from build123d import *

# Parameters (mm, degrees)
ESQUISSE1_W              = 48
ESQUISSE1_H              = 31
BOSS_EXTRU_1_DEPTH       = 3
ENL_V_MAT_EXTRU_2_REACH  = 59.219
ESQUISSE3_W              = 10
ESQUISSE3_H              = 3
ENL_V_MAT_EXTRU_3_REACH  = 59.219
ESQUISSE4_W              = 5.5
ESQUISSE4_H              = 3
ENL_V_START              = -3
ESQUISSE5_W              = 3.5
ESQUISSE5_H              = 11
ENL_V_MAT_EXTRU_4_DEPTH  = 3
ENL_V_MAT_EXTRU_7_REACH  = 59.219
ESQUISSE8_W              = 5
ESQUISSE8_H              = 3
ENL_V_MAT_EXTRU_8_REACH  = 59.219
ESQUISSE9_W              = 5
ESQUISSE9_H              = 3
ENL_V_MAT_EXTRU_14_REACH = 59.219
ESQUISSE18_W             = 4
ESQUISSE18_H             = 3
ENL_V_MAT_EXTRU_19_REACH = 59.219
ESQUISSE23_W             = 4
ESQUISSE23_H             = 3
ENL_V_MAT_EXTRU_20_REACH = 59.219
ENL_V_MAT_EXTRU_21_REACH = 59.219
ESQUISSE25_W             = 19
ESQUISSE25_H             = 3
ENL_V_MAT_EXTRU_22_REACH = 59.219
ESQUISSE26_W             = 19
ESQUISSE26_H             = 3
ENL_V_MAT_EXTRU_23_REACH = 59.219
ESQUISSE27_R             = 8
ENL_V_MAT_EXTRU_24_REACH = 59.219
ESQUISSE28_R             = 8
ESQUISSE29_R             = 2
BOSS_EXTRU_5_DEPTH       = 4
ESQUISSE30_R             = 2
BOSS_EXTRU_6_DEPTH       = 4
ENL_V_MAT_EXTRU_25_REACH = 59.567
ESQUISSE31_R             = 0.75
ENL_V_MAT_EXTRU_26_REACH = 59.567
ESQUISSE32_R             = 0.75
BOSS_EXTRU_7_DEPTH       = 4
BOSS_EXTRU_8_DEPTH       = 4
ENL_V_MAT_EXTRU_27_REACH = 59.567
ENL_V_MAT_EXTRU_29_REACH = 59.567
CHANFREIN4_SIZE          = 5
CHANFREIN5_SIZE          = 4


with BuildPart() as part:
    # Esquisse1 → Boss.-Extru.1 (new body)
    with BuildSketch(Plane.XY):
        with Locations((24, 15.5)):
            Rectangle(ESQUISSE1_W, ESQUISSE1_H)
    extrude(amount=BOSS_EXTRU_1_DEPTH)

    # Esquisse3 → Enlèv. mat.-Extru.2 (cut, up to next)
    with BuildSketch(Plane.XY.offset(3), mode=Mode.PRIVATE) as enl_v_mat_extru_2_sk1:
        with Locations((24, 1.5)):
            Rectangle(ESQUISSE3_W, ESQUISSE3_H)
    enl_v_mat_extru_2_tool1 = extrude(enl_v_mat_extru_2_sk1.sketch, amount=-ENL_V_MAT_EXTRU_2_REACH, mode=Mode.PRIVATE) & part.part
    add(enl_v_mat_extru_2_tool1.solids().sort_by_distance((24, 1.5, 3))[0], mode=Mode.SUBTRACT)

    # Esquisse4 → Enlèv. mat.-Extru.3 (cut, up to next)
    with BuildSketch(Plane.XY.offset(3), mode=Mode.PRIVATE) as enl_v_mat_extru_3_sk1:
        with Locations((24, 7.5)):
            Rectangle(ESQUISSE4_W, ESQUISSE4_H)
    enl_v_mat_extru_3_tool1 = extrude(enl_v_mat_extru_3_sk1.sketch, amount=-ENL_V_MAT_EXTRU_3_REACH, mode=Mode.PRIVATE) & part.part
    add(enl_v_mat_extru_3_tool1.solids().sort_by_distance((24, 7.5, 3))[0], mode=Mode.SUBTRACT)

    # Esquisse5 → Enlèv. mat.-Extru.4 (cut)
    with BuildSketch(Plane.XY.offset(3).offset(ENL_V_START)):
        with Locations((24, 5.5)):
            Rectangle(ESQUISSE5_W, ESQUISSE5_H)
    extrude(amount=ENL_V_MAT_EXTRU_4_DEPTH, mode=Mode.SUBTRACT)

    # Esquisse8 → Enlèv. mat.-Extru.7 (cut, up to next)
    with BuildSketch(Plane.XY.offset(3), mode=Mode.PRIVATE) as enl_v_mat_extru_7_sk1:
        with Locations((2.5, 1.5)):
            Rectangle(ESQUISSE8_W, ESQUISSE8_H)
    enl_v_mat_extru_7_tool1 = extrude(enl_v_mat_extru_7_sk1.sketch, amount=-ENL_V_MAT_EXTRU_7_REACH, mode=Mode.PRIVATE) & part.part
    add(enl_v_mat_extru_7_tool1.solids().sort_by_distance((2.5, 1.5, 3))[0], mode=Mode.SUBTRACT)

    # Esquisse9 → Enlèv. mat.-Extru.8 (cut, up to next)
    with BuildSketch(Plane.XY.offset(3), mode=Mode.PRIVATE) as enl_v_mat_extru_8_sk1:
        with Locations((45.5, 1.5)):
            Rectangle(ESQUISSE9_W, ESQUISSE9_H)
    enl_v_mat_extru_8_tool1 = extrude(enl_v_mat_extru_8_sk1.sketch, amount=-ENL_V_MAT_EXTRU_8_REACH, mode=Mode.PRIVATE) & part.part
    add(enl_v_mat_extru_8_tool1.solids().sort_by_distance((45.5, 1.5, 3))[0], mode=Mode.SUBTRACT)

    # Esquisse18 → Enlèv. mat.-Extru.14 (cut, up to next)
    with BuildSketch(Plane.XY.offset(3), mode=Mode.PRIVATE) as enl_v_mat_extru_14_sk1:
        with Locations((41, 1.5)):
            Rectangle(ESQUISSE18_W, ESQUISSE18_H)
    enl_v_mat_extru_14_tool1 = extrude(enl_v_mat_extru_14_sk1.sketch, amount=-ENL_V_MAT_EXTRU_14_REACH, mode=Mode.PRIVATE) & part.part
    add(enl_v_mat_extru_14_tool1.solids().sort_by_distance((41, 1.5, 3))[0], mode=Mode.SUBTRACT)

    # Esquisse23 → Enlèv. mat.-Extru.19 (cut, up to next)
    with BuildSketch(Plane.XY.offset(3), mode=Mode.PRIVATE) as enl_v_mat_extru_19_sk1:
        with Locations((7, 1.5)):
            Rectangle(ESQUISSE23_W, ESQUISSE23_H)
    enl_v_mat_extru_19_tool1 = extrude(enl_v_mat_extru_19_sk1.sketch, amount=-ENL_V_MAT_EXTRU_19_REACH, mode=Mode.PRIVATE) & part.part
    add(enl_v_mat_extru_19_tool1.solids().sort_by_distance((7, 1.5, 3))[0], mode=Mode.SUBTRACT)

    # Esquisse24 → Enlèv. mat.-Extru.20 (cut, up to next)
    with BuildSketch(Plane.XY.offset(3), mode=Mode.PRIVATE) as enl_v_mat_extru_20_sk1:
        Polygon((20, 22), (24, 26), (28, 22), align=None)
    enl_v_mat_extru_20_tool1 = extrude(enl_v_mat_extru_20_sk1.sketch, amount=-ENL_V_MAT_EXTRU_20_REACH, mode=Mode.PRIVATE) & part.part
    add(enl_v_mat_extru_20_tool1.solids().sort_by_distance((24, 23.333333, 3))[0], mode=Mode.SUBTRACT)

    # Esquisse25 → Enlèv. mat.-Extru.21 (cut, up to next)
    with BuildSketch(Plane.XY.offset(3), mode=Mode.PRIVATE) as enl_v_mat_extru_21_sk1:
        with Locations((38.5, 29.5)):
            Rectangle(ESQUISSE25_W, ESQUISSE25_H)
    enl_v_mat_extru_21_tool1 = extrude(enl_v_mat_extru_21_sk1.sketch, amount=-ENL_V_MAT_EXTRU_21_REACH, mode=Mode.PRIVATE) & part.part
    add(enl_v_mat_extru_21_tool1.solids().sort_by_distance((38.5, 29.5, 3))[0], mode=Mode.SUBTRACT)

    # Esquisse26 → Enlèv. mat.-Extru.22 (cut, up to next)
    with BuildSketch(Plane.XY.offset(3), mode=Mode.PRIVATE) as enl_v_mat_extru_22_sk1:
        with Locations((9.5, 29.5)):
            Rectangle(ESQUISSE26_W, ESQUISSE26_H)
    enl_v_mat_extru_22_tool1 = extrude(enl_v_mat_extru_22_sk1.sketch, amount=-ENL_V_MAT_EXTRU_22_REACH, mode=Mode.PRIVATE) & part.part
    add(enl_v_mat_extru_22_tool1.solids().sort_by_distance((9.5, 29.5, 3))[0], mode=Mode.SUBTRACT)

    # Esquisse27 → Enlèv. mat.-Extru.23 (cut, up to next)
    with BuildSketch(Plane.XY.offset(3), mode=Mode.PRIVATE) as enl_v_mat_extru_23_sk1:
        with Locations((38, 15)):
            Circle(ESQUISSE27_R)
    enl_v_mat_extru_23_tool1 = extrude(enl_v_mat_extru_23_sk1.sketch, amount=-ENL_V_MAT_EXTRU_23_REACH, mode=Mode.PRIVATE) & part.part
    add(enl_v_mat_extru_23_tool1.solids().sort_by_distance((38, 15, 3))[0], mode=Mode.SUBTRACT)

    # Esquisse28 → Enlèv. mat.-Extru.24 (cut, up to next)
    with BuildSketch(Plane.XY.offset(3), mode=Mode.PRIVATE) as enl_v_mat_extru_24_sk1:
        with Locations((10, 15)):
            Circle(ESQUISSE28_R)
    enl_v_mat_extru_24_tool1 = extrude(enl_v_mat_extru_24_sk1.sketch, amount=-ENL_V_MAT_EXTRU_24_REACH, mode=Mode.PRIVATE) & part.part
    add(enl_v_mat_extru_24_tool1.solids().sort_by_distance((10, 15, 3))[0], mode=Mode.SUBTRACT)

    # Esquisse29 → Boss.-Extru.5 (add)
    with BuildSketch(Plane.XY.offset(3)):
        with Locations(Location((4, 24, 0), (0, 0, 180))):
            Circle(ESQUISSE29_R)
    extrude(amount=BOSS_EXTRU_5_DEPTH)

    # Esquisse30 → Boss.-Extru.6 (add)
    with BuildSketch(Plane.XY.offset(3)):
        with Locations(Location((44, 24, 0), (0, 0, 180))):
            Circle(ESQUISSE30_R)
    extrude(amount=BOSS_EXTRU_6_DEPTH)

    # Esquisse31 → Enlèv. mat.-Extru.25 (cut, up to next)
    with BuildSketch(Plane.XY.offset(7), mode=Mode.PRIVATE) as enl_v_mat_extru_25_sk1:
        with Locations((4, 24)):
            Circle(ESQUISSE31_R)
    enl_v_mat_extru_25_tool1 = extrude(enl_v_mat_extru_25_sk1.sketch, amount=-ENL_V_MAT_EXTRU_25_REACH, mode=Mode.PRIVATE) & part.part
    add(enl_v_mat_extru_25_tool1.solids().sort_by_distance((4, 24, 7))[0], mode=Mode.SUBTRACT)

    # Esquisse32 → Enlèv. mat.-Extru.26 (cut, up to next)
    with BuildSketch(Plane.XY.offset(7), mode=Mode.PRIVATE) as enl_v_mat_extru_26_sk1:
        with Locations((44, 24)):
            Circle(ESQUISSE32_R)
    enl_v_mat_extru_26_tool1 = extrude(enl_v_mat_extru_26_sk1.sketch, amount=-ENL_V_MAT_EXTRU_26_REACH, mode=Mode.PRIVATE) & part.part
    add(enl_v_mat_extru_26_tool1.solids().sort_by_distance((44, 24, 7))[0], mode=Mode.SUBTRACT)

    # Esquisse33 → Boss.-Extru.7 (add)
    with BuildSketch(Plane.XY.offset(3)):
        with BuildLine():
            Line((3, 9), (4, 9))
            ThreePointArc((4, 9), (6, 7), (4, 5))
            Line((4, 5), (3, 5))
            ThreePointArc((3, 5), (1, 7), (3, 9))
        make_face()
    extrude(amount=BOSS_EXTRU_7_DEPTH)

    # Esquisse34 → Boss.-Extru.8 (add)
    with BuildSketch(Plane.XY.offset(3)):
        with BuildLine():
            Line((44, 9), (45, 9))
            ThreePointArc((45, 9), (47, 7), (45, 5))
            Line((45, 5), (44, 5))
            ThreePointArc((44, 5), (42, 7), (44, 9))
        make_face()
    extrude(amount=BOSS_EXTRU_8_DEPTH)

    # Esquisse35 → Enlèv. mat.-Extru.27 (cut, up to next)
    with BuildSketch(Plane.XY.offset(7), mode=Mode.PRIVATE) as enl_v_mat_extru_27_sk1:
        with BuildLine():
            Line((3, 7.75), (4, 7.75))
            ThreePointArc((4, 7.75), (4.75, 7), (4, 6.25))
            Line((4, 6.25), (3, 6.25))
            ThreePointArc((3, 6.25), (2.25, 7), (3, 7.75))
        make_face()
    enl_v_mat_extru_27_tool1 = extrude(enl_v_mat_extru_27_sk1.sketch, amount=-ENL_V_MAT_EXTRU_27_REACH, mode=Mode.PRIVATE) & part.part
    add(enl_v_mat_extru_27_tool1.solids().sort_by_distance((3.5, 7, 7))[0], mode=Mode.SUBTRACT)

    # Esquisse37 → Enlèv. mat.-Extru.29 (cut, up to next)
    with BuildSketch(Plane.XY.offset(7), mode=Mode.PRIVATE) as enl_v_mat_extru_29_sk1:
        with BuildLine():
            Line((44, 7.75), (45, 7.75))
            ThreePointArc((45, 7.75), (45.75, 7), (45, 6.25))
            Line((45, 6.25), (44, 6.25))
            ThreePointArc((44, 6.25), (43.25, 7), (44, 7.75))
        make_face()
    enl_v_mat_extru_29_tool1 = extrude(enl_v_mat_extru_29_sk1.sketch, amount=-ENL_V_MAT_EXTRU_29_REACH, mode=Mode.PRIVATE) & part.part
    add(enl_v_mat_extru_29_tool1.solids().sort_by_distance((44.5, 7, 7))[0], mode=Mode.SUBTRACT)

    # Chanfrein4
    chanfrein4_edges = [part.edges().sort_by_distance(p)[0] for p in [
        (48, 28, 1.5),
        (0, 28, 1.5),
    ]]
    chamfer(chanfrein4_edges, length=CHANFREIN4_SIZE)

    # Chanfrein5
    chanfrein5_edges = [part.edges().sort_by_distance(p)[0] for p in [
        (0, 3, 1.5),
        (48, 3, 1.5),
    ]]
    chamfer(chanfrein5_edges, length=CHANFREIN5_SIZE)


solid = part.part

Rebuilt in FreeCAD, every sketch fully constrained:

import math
import FreeCAD as App
import Part
import Sketcher
from FreeCAD import Vector
Q = App.Units.Quantity


def edges_at(feature, points):
    """Names of the edges that pass closest to the given points."""
    edges = feature.Shape.Edges
    near = lambda p: min(range(len(edges)), key=lambda i: edges[i].distToShape(Part.Vertex(*p))[0])
    return sorted({f"Edge{near(p) + 1}" for p in points})

doc = App.newDocument("Part")
params = doc.addObject("Spreadsheet::Sheet", "Params")
for row, (alias, value) in enumerate([
    ("sketch1_width", "48 mm"),
    ("sketch1_height", "31 mm"),
    ("pad1_length", "3 mm"),
    ("sketch2_width", "10 mm"),
    ("sketch2_height", "3 mm"),
    ("sketch3_height", "3 mm"),
    ("sketch3_width", "5.5 mm"),
    ("sketch4_height", "11 mm"),
    ("sketch4_width", "3.5 mm"),
    ("pocket3_length", "3 mm"),
    ("sketch5_width", "5 mm"),
    ("sketch5_height", "3 mm"),
    ("sketch6_width", "5 mm"),
    ("sketch6_height", "3 mm"),
    ("sketch7_width", "4 mm"),
    ("sketch7_height", "3 mm"),
    ("sketch8_width", "4 mm"),
    ("sketch8_height", "3 mm"),
    ("sketch9_width", "8 mm"),
    ("sketch10_width", "19 mm"),
    ("sketch10_height", "3 mm"),
    ("sketch11_width", "19 mm"),
    ("sketch11_height", "3 mm"),
    ("sketch12_diameter", "16 mm"),
    ("sketch13_diameter", "16 mm"),
    ("sketch14_diameter", "4 mm"),
    ("pad2_length", "4 mm"),
    ("sketch15_diameter", "4 mm"),
    ("pad3_length", "4 mm"),
    ("sketch16_diameter", "1.5 mm"),
    ("sketch17_diameter", "1.5 mm"),
    ("sketch18_radius", "2 mm"),
    ("sketch18_width", "1 mm"),
    ("pad4_length", "4 mm"),
    ("sketch19_radius", "2 mm"),
    ("sketch19_width", "1 mm"),
    ("pad5_length", "4 mm"),
    ("sketch20_width", "1 mm"),
    ("sketch20_radius", "0.75 mm"),
    ("sketch21_width", "1 mm"),
    ("sketch21_radius", "0.75 mm"),
    ("chamfer_size", "5 mm"),
    ("chamfer2_size", "4 mm"),
], start=1):
    params.set(f"A{row}", alias)
    params.set(f"B{row}", "=" + value)
    params.setAlias(f"B{row}", alias)

body = doc.addObject("PartDesign::Body", "Body")

sketch1 = doc.addObject("Sketcher::SketchObject", "Sketch")
body.addObject(sketch1)
sketch1.AttachmentSupport = (doc.XY_Plane, [""])
sketch1.MapMode = "FlatFace"
sketch1.addGeometry([
    Part.LineSegment(Vector(0, 31, 0), Vector(0, 0, 0)),
    Part.LineSegment(Vector(0, 0, 0), Vector(48, 0, 0)),
    Part.LineSegment(Vector(48, 0, 0), Vector(48, 31, 0)),
    Part.LineSegment(Vector(48, 31, 0), Vector(0, 31, 0)),
], False)
sketch1.addConstraint([
    Sketcher.Constraint("Coincident", 0, 2, 1, 1),
    Sketcher.Constraint("Coincident", 1, 2, 2, 1),
    Sketcher.Constraint("Coincident", 2, 2, 3, 1),
    Sketcher.Constraint("Coincident", 3, 2, 0, 1),
    Sketcher.Constraint("Vertical", 0),
    Sketcher.Constraint("Horizontal", 1),
    Sketcher.Constraint("Vertical", 2),
    Sketcher.Constraint("Horizontal", 3),
    Sketcher.Constraint("Coincident", 0, 2, -1, 1),
    Sketcher.Constraint("DistanceX", 1, 1, 1, 2, Q("48 mm")),
    Sketcher.Constraint("DistanceY", 0, 2, 0, 1, Q("31 mm")),
])
sketch1.setExpression("Constraints[9]", "Params.sketch1_width")
sketch1.setExpression("Constraints[10]", "Params.sketch1_height")
pad1 = doc.addObject("PartDesign::Pad", "Pad")
body.addObject(pad1)
pad1.Profile = sketch1
pad1.setExpression("Length", "Params.pad1_length")

sketch2 = doc.addObject("Sketcher::SketchObject", "Sketch001")
body.addObject(sketch2)
sketch2.AttachmentSupport = (doc.XY_Plane, [""])
sketch2.MapMode = "FlatFace"
sketch2.AttachmentOffset = App.Placement(Vector(0, 0, 3), App.Rotation())
sketch2.addGeometry([
    Part.LineSegment(Vector(19, 3, 0), Vector(19, 0, 0)),
    Part.LineSegment(Vector(19, 0, 0), Vector(29, 0, 0)),
    Part.LineSegment(Vector(29, 0, 0), Vector(29, 3, 0)),
    Part.LineSegment(Vector(29, 3, 0), Vector(19, 3, 0)),
], False)
sketch2.addConstraint([
    Sketcher.Constraint("Coincident", 0, 2, 1, 1),
    Sketcher.Constraint("Coincident", 1, 2, 2, 1),
    Sketcher.Constraint("Coincident", 2, 2, 3, 1),
    Sketcher.Constraint("Coincident", 3, 2, 0, 1),
    Sketcher.Constraint("Vertical", 0),
    Sketcher.Constraint("Horizontal", 1),
    Sketcher.Constraint("Vertical", 2),
    Sketcher.Constraint("Horizontal", 3),
    Sketcher.Constraint("PointOnObject", 0, 2, -1),
    Sketcher.Constraint("DistanceX", 1, 1, 1, 2, Q("10 mm")),
    Sketcher.Constraint("DistanceY", 0, 2, 0, 1, Q("3 mm")),
    Sketcher.Constraint("DistanceX", -1, 1, 0, 2, Q("19 mm")),
])
sketch2.setExpression("Constraints[9]", "Params.sketch2_width")
sketch2.setExpression("Constraints[10]", "Params.sketch2_height")
pocket1 = doc.addObject("PartDesign::Pocket", "Pocket")
body.addObject(pocket1)
pocket1.Profile = sketch2
pocket1.Type = "UpToFirst"

sketch3 = doc.addObject("Sketcher::SketchObject", "Sketch002")
body.addObject(sketch3)
sketch3.AttachmentSupport = (doc.XY_Plane, [""])
sketch3.MapMode = "FlatFace"
sketch3.AttachmentOffset = App.Placement(Vector(0, 0, 3), App.Rotation())
sketch3.addGeometry([
    Part.LineSegment(Vector(21.2, 9, 0), Vector(21.2, 6, 0)),
    Part.LineSegment(Vector(21.2, 6, 0), Vector(26.8, 6, 0)),
    Part.LineSegment(Vector(26.8, 6, 0), Vector(26.8, 9, 0)),
    Part.LineSegment(Vector(26.8, 9, 0), Vector(21.2, 9, 0)),
], False)
sketch3.addConstraint([
    Sketcher.Constraint("Coincident", 0, 2, 1, 1),
    Sketcher.Constraint("Coincident", 1, 2, 2, 1),
    Sketcher.Constraint("Coincident", 2, 2, 3, 1),
    Sketcher.Constraint("Coincident", 3, 2, 0, 1),
    Sketcher.Constraint("Vertical", 0),
    Sketcher.Constraint("Horizontal", 1),
    Sketcher.Constraint("Vertical", 2),
    Sketcher.Constraint("Horizontal", 3),
    Sketcher.Constraint("DistanceY", 0, 2, 0, 1, Q("3 mm")),
    Sketcher.Constraint("DistanceX", 1, 1, 1, 2, Q("5.5 mm")),
    Sketcher.Constraint("DistanceY", -1, 1, 0, 2, Q("6 mm")),
    Sketcher.Constraint("DistanceX", -1, 1, 0, 2, Q("21.25 mm")),
])
sketch3.setExpression("Constraints[8]", "Params.sketch3_height")
sketch3.setExpression("Constraints[9]", "Params.sketch3_width")
pocket2 = doc.addObject("PartDesign::Pocket", "Pocket001")
body.addObject(pocket2)
pocket2.Profile = sketch3
pocket2.Type = "UpToFirst"

sketch4 = doc.addObject("Sketcher::SketchObject", "Sketch003")
body.addObject(sketch4)
sketch4.AttachmentSupport = (doc.XY_Plane, [""])
sketch4.MapMode = "FlatFace"
sketch4.addGeometry([
    Part.LineSegment(Vector(22.2, 11, 0), Vector(22.2, 0, 0)),
    Part.LineSegment(Vector(22.2, 0, 0), Vector(25.8, 0, 0)),
    Part.LineSegment(Vector(25.8, 0, 0), Vector(25.8, 11, 0)),
    Part.LineSegment(Vector(25.8, 11, 0), Vector(22.2, 11, 0)),
], False)
sketch4.addConstraint([
    Sketcher.Constraint("Coincident", 0, 2, 1, 1),
    Sketcher.Constraint("Coincident", 1, 2, 2, 1),
    Sketcher.Constraint("Coincident", 2, 2, 3, 1),
    Sketcher.Constraint("Coincident", 3, 2, 0, 1),
    Sketcher.Constraint("Vertical", 0),
    Sketcher.Constraint("Horizontal", 1),
    Sketcher.Constraint("Vertical", 2),
    Sketcher.Constraint("Horizontal", 3),
    Sketcher.Constraint("PointOnObject", 0, 2, -1),
    Sketcher.Constraint("DistanceY", 0, 2, 0, 1, Q("11 mm")),
    Sketcher.Constraint("DistanceX", 1, 1, 1, 2, Q("3.5 mm")),
    Sketcher.Constraint("DistanceX", -1, 1, 0, 2, Q("22.25 mm")),
])
sketch4.setExpression("Constraints[9]", "Params.sketch4_height")
sketch4.setExpression("Constraints[10]", "Params.sketch4_width")
pocket3 = doc.addObject("PartDesign::Pocket", "Pocket002")
body.addObject(pocket3)
pocket3.Profile = sketch4
pocket3.setExpression("Length", "Params.pocket3_length")
pocket3.Reversed = True

sketch5 = doc.addObject("Sketcher::SketchObject", "Sketch004")
body.addObject(sketch5)
sketch5.AttachmentSupport = (doc.XY_Plane, [""])
sketch5.MapMode = "FlatFace"
sketch5.AttachmentOffset = App.Placement(Vector(0, 0, 3), App.Rotation())
sketch5.addGeometry([
    Part.LineSegment(Vector(0, 3, 0), Vector(0, 0, 0)),
    Part.LineSegment(Vector(0, 0, 0), Vector(5, 0, 0)),
    Part.LineSegment(Vector(5, 0, 0), Vector(5, 3, 0)),
    Part.LineSegment(Vector(5, 3, 0), Vector(0, 3, 0)),
], False)
sketch5.addConstraint([
    Sketcher.Constraint("Coincident", 0, 2, 1, 1),
    Sketcher.Constraint("Coincident", 1, 2, 2, 1),
    Sketcher.Constraint("Coincident", 2, 2, 3, 1),
    Sketcher.Constraint("Coincident", 3, 2, 0, 1),
    Sketcher.Constraint("Vertical", 0),
    Sketcher.Constraint("Horizontal", 1),
    Sketcher.Constraint("Vertical", 2),
    Sketcher.Constraint("Horizontal", 3),
    Sketcher.Constraint("Coincident", 0, 2, -1, 1),
    Sketcher.Constraint("DistanceX", 1, 1, 1, 2, Q("5 mm")),
    Sketcher.Constraint("DistanceY", 0, 2, 0, 1, Q("3 mm")),
])
sketch5.setExpression("Constraints[9]", "Params.sketch5_width")
sketch5.setExpression("Constraints[10]", "Params.sketch5_height")
pocket4 = doc.addObject("PartDesign::Pocket", "Pocket003")
body.addObject(pocket4)
pocket4.Profile = sketch5
pocket4.Type = "UpToFirst"

sketch6 = doc.addObject("Sketcher::SketchObject", "Sketch005")
body.addObject(sketch6)
sketch6.AttachmentSupport = (doc.XY_Plane, [""])
sketch6.MapMode = "FlatFace"
sketch6.AttachmentOffset = App.Placement(Vector(0, 0, 3), App.Rotation())
sketch6.addGeometry([
    Part.LineSegment(Vector(43, 3, 0), Vector(43, 0, 0)),
    Part.LineSegment(Vector(43, 0, 0), Vector(48, 0, 0)),
    Part.LineSegment(Vector(48, 0, 0), Vector(48, 3, 0)),
    Part.LineSegment(Vector(48, 3, 0), Vector(43, 3, 0)),
], False)
sketch6.addConstraint([
    Sketcher.Constraint("Coincident", 0, 2, 1, 1),
    Sketcher.Constraint("Coincident", 1, 2, 2, 1),
    Sketcher.Constraint("Coincident", 2, 2, 3, 1),
    Sketcher.Constraint("Coincident", 3, 2, 0, 1),
    Sketcher.Constraint("Vertical", 0),
    Sketcher.Constraint("Horizontal", 1),
    Sketcher.Constraint("Vertical", 2),
    Sketcher.Constraint("Horizontal", 3),
    Sketcher.Constraint("PointOnObject", 0, 2, -1),
    Sketcher.Constraint("DistanceX", 1, 1, 1, 2, Q("5 mm")),
    Sketcher.Constraint("DistanceY", 0, 2, 0, 1, Q("3 mm")),
    Sketcher.Constraint("DistanceX", -1, 1, 0, 2, Q("43 mm")),
])
sketch6.setExpression("Constraints[9]", "Params.sketch6_width")
sketch6.setExpression("Constraints[10]", "Params.sketch6_height")
pocket5 = doc.addObject("PartDesign::Pocket", "Pocket004")
body.addObject(pocket5)
pocket5.Profile = sketch6
pocket5.Type = "UpToFirst"

sketch7 = doc.addObject("Sketcher::SketchObject", "Sketch006")
body.addObject(sketch7)
sketch7.AttachmentSupport = (doc.XY_Plane, [""])
sketch7.MapMode = "FlatFace"
sketch7.AttachmentOffset = App.Placement(Vector(0, 0, 3), App.Rotation())
sketch7.addGeometry([
    Part.LineSegment(Vector(39, 3, 0), Vector(39, 0, 0)),
    Part.LineSegment(Vector(39, 0, 0), Vector(43, 0, 0)),
    Part.LineSegment(Vector(43, 0, 0), Vector(43, 3, 0)),
    Part.LineSegment(Vector(43, 3, 0), Vector(39, 3, 0)),
], False)
sketch7.addConstraint([
    Sketcher.Constraint("Coincident", 0, 2, 1, 1),
    Sketcher.Constraint("Coincident", 1, 2, 2, 1),
    Sketcher.Constraint("Coincident", 2, 2, 3, 1),
    Sketcher.Constraint("Coincident", 3, 2, 0, 1),
    Sketcher.Constraint("Vertical", 0),
    Sketcher.Constraint("Horizontal", 1),
    Sketcher.Constraint("Vertical", 2),
    Sketcher.Constraint("Horizontal", 3),
    Sketcher.Constraint("PointOnObject", 0, 2, -1),
    Sketcher.Constraint("DistanceX", 1, 1, 1, 2, Q("4 mm")),
    Sketcher.Constraint("DistanceY", 0, 2, 0, 1, Q("3 mm")),
    Sketcher.Constraint("DistanceX", -1, 1, 0, 2, Q("39 mm")),
])
sketch7.setExpression("Constraints[9]", "Params.sketch7_width")
sketch7.setExpression("Constraints[10]", "Params.sketch7_height")
pocket6 = doc.addObject("PartDesign::Pocket", "Pocket005")
body.addObject(pocket6)
pocket6.Profile = sketch7
pocket6.Type = "UpToFirst"

sketch8 = doc.addObject("Sketcher::SketchObject", "Sketch007")
body.addObject(sketch8)
sketch8.AttachmentSupport = (doc.XY_Plane, [""])
sketch8.MapMode = "FlatFace"
sketch8.AttachmentOffset = App.Placement(Vector(0, 0, 3), App.Rotation())
sketch8.addGeometry([
    Part.LineSegment(Vector(5, 3, 0), Vector(5, 0, 0)),
    Part.LineSegment(Vector(5, 0, 0), Vector(9, 0, 0)),
    Part.LineSegment(Vector(9, 0, 0), Vector(9, 3, 0)),
    Part.LineSegment(Vector(9, 3, 0), Vector(5, 3, 0)),
], False)
sketch8.addConstraint([
    Sketcher.Constraint("Coincident", 0, 2, 1, 1),
    Sketcher.Constraint("Coincident", 1, 2, 2, 1),
    Sketcher.Constraint("Coincident", 2, 2, 3, 1),
    Sketcher.Constraint("Coincident", 3, 2, 0, 1),
    Sketcher.Constraint("Vertical", 0),
    Sketcher.Constraint("Horizontal", 1),
    Sketcher.Constraint("Vertical", 2),
    Sketcher.Constraint("Horizontal", 3),
    Sketcher.Constraint("PointOnObject", 0, 2, -1),
    Sketcher.Constraint("DistanceX", 1, 1, 1, 2, Q("4 mm")),
    Sketcher.Constraint("DistanceY", 0, 2, 0, 1, Q("3 mm")),
    Sketcher.Constraint("DistanceX", -1, 1, 0, 2, Q("5 mm")),
])
sketch8.setExpression("Constraints[9]", "Params.sketch8_width")
sketch8.setExpression("Constraints[10]", "Params.sketch8_height")
pocket7 = doc.addObject("PartDesign::Pocket", "Pocket006")
body.addObject(pocket7)
pocket7.Profile = sketch8
pocket7.Type = "UpToFirst"

sketch9 = doc.addObject("Sketcher::SketchObject", "Sketch008")
body.addObject(sketch9)
sketch9.AttachmentSupport = (doc.XY_Plane, [""])
sketch9.MapMode = "FlatFace"
sketch9.AttachmentOffset = App.Placement(Vector(0, 0, 3), App.Rotation())
sketch9.addGeometry([
    Part.LineSegment(Vector(24, 26, 0), Vector(20, 22, 0)),
    Part.LineSegment(Vector(20, 22, 0), Vector(28, 22, 0)),
    Part.LineSegment(Vector(28, 22, 0), Vector(24, 26, 0)),
], False)
sketch9.addConstraint([
    Sketcher.Constraint("Coincident", 0, 2, 1, 1),
    Sketcher.Constraint("Coincident", 1, 2, 2, 1),
    Sketcher.Constraint("Coincident", 2, 2, 0, 1),
    Sketcher.Constraint("Horizontal", 1),
    Sketcher.Constraint("Perpendicular", 0, 2),
    Sketcher.Constraint("Equal", 0, 2),
    Sketcher.Constraint("DistanceX", 1, 1, 1, 2, Q("8 mm")),
    Sketcher.Constraint("DistanceX", -1, 1, 0, 2, Q("20 mm")),
    Sketcher.Constraint("DistanceY", -1, 1, 0, 2, Q("22 mm")),
])
sketch9.setExpression("Constraints[6]", "Params.sketch9_width")
pocket8 = doc.addObject("PartDesign::Pocket", "Pocket007")
body.addObject(pocket8)
pocket8.Profile = sketch9
pocket8.Type = "UpToFirst"

sketch10 = doc.addObject("Sketcher::SketchObject", "Sketch009")
body.addObject(sketch10)
sketch10.AttachmentSupport = (doc.XY_Plane, [""])
sketch10.MapMode = "FlatFace"
sketch10.AttachmentOffset = App.Placement(Vector(0, 0, 3), App.Rotation())
sketch10.addGeometry([
    Part.LineSegment(Vector(29, 31, 0), Vector(29, 28, 0)),
    Part.LineSegment(Vector(29, 28, 0), Vector(48, 28, 0)),
    Part.LineSegment(Vector(48, 28, 0), Vector(48, 31, 0)),
    Part.LineSegment(Vector(48, 31, 0), Vector(29, 31, 0)),
], False)
sketch10.addConstraint([
    Sketcher.Constraint("Coincident", 0, 2, 1, 1),
    Sketcher.Constraint("Coincident", 1, 2, 2, 1),
    Sketcher.Constraint("Coincident", 2, 2, 3, 1),
    Sketcher.Constraint("Coincident", 3, 2, 0, 1),
    Sketcher.Constraint("Vertical", 0),
    Sketcher.Constraint("Horizontal", 1),
    Sketcher.Constraint("Vertical", 2),
    Sketcher.Constraint("Horizontal", 3),
    Sketcher.Constraint("DistanceX", 1, 1, 1, 2, Q("19 mm")),
    Sketcher.Constraint("DistanceY", 0, 2, 0, 1, Q("3 mm")),
    Sketcher.Constraint("DistanceX", -1, 1, 0, 2, Q("29 mm")),
    Sketcher.Constraint("DistanceY", -1, 1, 0, 2, Q("28 mm")),
])
sketch10.setExpression("Constraints[8]", "Params.sketch10_width")
sketch10.setExpression("Constraints[9]", "Params.sketch10_height")
pocket9 = doc.addObject("PartDesign::Pocket", "Pocket008")
body.addObject(pocket9)
pocket9.Profile = sketch10
pocket9.Type = "UpToFirst"

sketch11 = doc.addObject("Sketcher::SketchObject", "Sketch010")
body.addObject(sketch11)
sketch11.AttachmentSupport = (doc.XY_Plane, [""])
sketch11.MapMode = "FlatFace"
sketch11.AttachmentOffset = App.Placement(Vector(0, 0, 3), App.Rotation())
sketch11.addGeometry([
    Part.LineSegment(Vector(0, 31, 0), Vector(0, 28, 0)),
    Part.LineSegment(Vector(0, 28, 0), Vector(19, 28, 0)),
    Part.LineSegment(Vector(19, 28, 0), Vector(19, 31, 0)),
    Part.LineSegment(Vector(19, 31, 0), Vector(0, 31, 0)),
], False)
sketch11.addConstraint([
    Sketcher.Constraint("Coincident", 0, 2, 1, 1),
    Sketcher.Constraint("Coincident", 1, 2, 2, 1),
    Sketcher.Constraint("Coincident", 2, 2, 3, 1),
    Sketcher.Constraint("Coincident", 3, 2, 0, 1),
    Sketcher.Constraint("Vertical", 0),
    Sketcher.Constraint("Horizontal", 1),
    Sketcher.Constraint("Vertical", 2),
    Sketcher.Constraint("Horizontal", 3),
    Sketcher.Constraint("PointOnObject", 0, 2, -2),
    Sketcher.Constraint("DistanceX", 1, 1, 1, 2, Q("19 mm")),
    Sketcher.Constraint("DistanceY", 0, 2, 0, 1, Q("3 mm")),
    Sketcher.Constraint("DistanceY", -1, 1, 0, 2, Q("28 mm")),
])
sketch11.setExpression("Constraints[9]", "Params.sketch11_width")
sketch11.setExpression("Constraints[10]", "Params.sketch11_height")
pocket10 = doc.addObject("PartDesign::Pocket", "Pocket009")
body.addObject(pocket10)
pocket10.Profile = sketch11
pocket10.Type = "UpToFirst"

sketch12 = doc.addObject("Sketcher::SketchObject", "Sketch011")
body.addObject(sketch12)
sketch12.AttachmentSupport = (doc.XY_Plane, [""])
sketch12.MapMode = "FlatFace"
sketch12.AttachmentOffset = App.Placement(Vector(0, 0, 3), App.Rotation())
sketch12.addGeometry(Part.Circle(Vector(38, 15, 0), Vector(0, 0, 1), 8), False)
sketch12.addConstraint([
    Sketcher.Constraint("Diameter", 0, Q("16 mm")),
    Sketcher.Constraint("DistanceX", -1, 1, 0, 3, Q("38 mm")),
    Sketcher.Constraint("DistanceY", -1, 1, 0, 3, Q("15 mm")),
])
sketch12.setExpression("Constraints[0]", "Params.sketch12_diameter")
pocket11 = doc.addObject("PartDesign::Pocket", "Pocket010")
body.addObject(pocket11)
pocket11.Profile = sketch12
pocket11.Type = "UpToFirst"

sketch13 = doc.addObject("Sketcher::SketchObject", "Sketch012")
body.addObject(sketch13)
sketch13.AttachmentSupport = (doc.XY_Plane, [""])
sketch13.MapMode = "FlatFace"
sketch13.AttachmentOffset = App.Placement(Vector(0, 0, 3), App.Rotation())
sketch13.addGeometry(Part.Circle(Vector(10, 15, 0), Vector(0, 0, 1), 8), False)
sketch13.addConstraint([
    Sketcher.Constraint("Diameter", 0, Q("16 mm")),
    Sketcher.Constraint("DistanceX", -1, 1, 0, 3, Q("10 mm")),
    Sketcher.Constraint("DistanceY", -1, 1, 0, 3, Q("15 mm")),
])
sketch13.setExpression("Constraints[0]", "Params.sketch13_diameter")
pocket12 = doc.addObject("PartDesign::Pocket", "Pocket011")
body.addObject(pocket12)
pocket12.Profile = sketch13
pocket12.Type = "UpToFirst"

sketch14 = doc.addObject("Sketcher::SketchObject", "Sketch013")
body.addObject(sketch14)
sketch14.AttachmentSupport = (doc.XY_Plane, [""])
sketch14.MapMode = "FlatFace"
sketch14.AttachmentOffset = App.Placement(Vector(0, 0, 3), App.Rotation())
sketch14.addGeometry(Part.Circle(Vector(4, 24, 0), Vector(0, 0, 1), 2), False)
sketch14.addConstraint([
    Sketcher.Constraint("Diameter", 0, Q("4 mm")),
    Sketcher.Constraint("DistanceX", -1, 1, 0, 3, Q("4 mm")),
    Sketcher.Constraint("DistanceY", -1, 1, 0, 3, Q("24 mm")),
])
sketch14.setExpression("Constraints[0]", "Params.sketch14_diameter")
pad2 = doc.addObject("PartDesign::Pad", "Pad001")
body.addObject(pad2)
pad2.Profile = sketch14
pad2.setExpression("Length", "Params.pad2_length")

sketch15 = doc.addObject("Sketcher::SketchObject", "Sketch014")
body.addObject(sketch15)
sketch15.AttachmentSupport = (doc.XY_Plane, [""])
sketch15.MapMode = "FlatFace"
sketch15.AttachmentOffset = App.Placement(Vector(0, 0, 3), App.Rotation())
sketch15.addGeometry(Part.Circle(Vector(44, 24, 0), Vector(0, 0, 1), 2), False)
sketch15.addConstraint([
    Sketcher.Constraint("Diameter", 0, Q("4 mm")),
    Sketcher.Constraint("DistanceX", -1, 1, 0, 3, Q("44 mm")),
    Sketcher.Constraint("DistanceY", -1, 1, 0, 3, Q("24 mm")),
])
sketch15.setExpression("Constraints[0]", "Params.sketch15_diameter")
pad3 = doc.addObject("PartDesign::Pad", "Pad002")
body.addObject(pad3)
pad3.Profile = sketch15
pad3.setExpression("Length", "Params.pad3_length")

sketch16 = doc.addObject("Sketcher::SketchObject", "Sketch015")
body.addObject(sketch16)
sketch16.AttachmentSupport = (doc.XY_Plane, [""])
sketch16.MapMode = "FlatFace"
sketch16.AttachmentOffset = App.Placement(Vector(0, 0, 7), App.Rotation())
sketch16.addGeometry(Part.Circle(Vector(4, 24, 0), Vector(0, 0, 1), 0.8), False)
sketch16.addConstraint([
    Sketcher.Constraint("Diameter", 0, Q("1.5 mm")),
    Sketcher.Constraint("DistanceX", -1, 1, 0, 3, Q("4 mm")),
    Sketcher.Constraint("DistanceY", -1, 1, 0, 3, Q("24 mm")),
])
sketch16.setExpression("Constraints[0]", "Params.sketch16_diameter")
pocket13 = doc.addObject("PartDesign::Pocket", "Pocket012")
body.addObject(pocket13)
pocket13.Profile = sketch16
pocket13.Type = "UpToFirst"

sketch17 = doc.addObject("Sketcher::SketchObject", "Sketch016")
body.addObject(sketch17)
sketch17.AttachmentSupport = (doc.XY_Plane, [""])
sketch17.MapMode = "FlatFace"
sketch17.AttachmentOffset = App.Placement(Vector(0, 0, 7), App.Rotation())
sketch17.addGeometry(Part.Circle(Vector(44, 24, 0), Vector(0, 0, 1), 0.8), False)
sketch17.addConstraint([
    Sketcher.Constraint("Diameter", 0, Q("1.5 mm")),
    Sketcher.Constraint("DistanceX", -1, 1, 0, 3, Q("44 mm")),
    Sketcher.Constraint("DistanceY", -1, 1, 0, 3, Q("24 mm")),
])
sketch17.setExpression("Constraints[0]", "Params.sketch17_diameter")
pocket14 = doc.addObject("PartDesign::Pocket", "Pocket013")
body.addObject(pocket14)
pocket14.Profile = sketch17
pocket14.Type = "UpToFirst"

sketch18 = doc.addObject("Sketcher::SketchObject", "Sketch017")
body.addObject(sketch18)
sketch18.AttachmentSupport = (doc.XY_Plane, [""])
sketch18.MapMode = "FlatFace"
sketch18.AttachmentOffset = App.Placement(Vector(0, 0, 3), App.Rotation())
sketch18.addGeometry([
    Part.LineSegment(Vector(4, 9, 0), Vector(3, 9, 0)),
    Part.ArcOfCircle(Part.Circle(Vector(3, 7, 0), Vector(0, 0, 1), 2), math.radians(90), math.radians(270)),
    Part.LineSegment(Vector(3, 5, 0), Vector(4, 5, 0)),
    Part.ArcOfCircle(Part.Circle(Vector(4, 7, 0), Vector(0, 0, 1), 2), math.radians(-90), math.radians(90)),
], False)
sketch18.addConstraint([
    Sketcher.Constraint("Tangent", 0, 2, 1, 1),
    Sketcher.Constraint("Tangent", 1, 2, 2, 1),
    Sketcher.Constraint("Tangent", 2, 2, 3, 1),
    Sketcher.Constraint("Tangent", 3, 2, 0, 1),
    Sketcher.Constraint("Horizontal", 0),
    Sketcher.Constraint("Horizontal", 2),
    Sketcher.Constraint("Radius", 1, Q("2 mm")),
    Sketcher.Constraint("DistanceX", 0, 2, 0, 1, Q("1 mm")),
    Sketcher.Constraint("DistanceX", -1, 1, 1, 3, Q("3 mm")),
    Sketcher.Constraint("DistanceY", -1, 1, 1, 3, Q("7 mm")),
])
sketch18.setExpression("Constraints[6]", "Params.sketch18_radius")
sketch18.setExpression("Constraints[7]", "Params.sketch18_width")
pad4 = doc.addObject("PartDesign::Pad", "Pad003")
body.addObject(pad4)
pad4.Profile = sketch18
pad4.setExpression("Length", "Params.pad4_length")

sketch19 = doc.addObject("Sketcher::SketchObject", "Sketch018")
body.addObject(sketch19)
sketch19.AttachmentSupport = (doc.XY_Plane, [""])
sketch19.MapMode = "FlatFace"
sketch19.AttachmentOffset = App.Placement(Vector(0, 0, 3), App.Rotation())
sketch19.addGeometry([
    Part.LineSegment(Vector(45, 9, 0), Vector(44, 9, 0)),
    Part.ArcOfCircle(Part.Circle(Vector(44, 7, 0), Vector(0, 0, 1), 2), math.radians(90), math.radians(270)),
    Part.LineSegment(Vector(44, 5, 0), Vector(45, 5, 0)),
    Part.ArcOfCircle(Part.Circle(Vector(45, 7, 0), Vector(0, 0, 1), 2), math.radians(-90), math.radians(90)),
], False)
sketch19.addConstraint([
    Sketcher.Constraint("Tangent", 0, 2, 1, 1),
    Sketcher.Constraint("Tangent", 1, 2, 2, 1),
    Sketcher.Constraint("Tangent", 2, 2, 3, 1),
    Sketcher.Constraint("Tangent", 3, 2, 0, 1),
    Sketcher.Constraint("Horizontal", 0),
    Sketcher.Constraint("Horizontal", 2),
    Sketcher.Constraint("Radius", 1, Q("2 mm")),
    Sketcher.Constraint("DistanceX", 0, 2, 0, 1, Q("1 mm")),
    Sketcher.Constraint("DistanceX", -1, 1, 1, 3, Q("44 mm")),
    Sketcher.Constraint("DistanceY", -1, 1, 1, 3, Q("7 mm")),
])
sketch19.setExpression("Constraints[6]", "Params.sketch19_radius")
sketch19.setExpression("Constraints[7]", "Params.sketch19_width")
pad5 = doc.addObject("PartDesign::Pad", "Pad004")
body.addObject(pad5)
pad5.Profile = sketch19
pad5.setExpression("Length", "Params.pad5_length")

sketch20 = doc.addObject("Sketcher::SketchObject", "Sketch019")
body.addObject(sketch20)
sketch20.AttachmentSupport = (doc.XY_Plane, [""])
sketch20.MapMode = "FlatFace"
sketch20.AttachmentOffset = App.Placement(Vector(0, 0, 7), App.Rotation())
sketch20.addGeometry([
    Part.LineSegment(Vector(4, 7.8, 0), Vector(3, 7.8, 0)),
    Part.ArcOfCircle(Part.Circle(Vector(3, 7, 0), Vector(0, 0, 1), 0.8), math.radians(90), math.radians(270)),
    Part.LineSegment(Vector(3, 6.2, 0), Vector(4, 6.2, 0)),
    Part.ArcOfCircle(Part.Circle(Vector(4, 7, 0), Vector(0, 0, 1), 0.8), math.radians(-90), math.radians(90)),
], False)
sketch20.addConstraint([
    Sketcher.Constraint("Tangent", 0, 2, 1, 1),
    Sketcher.Constraint("Tangent", 1, 2, 2, 1),
    Sketcher.Constraint("Tangent", 2, 2, 3, 1),
    Sketcher.Constraint("Tangent", 3, 2, 0, 1),
    Sketcher.Constraint("Horizontal", 0),
    Sketcher.Constraint("Horizontal", 2),
    Sketcher.Constraint("DistanceX", 0, 2, 0, 1, Q("1 mm")),
    Sketcher.Constraint("Radius", 1, Q("0.75 mm")),
    Sketcher.Constraint("DistanceX", -1, 1, 1, 3, Q("3 mm")),
    Sketcher.Constraint("DistanceY", -1, 1, 1, 3, Q("7 mm")),
])
sketch20.setExpression("Constraints[6]", "Params.sketch20_width")
sketch20.setExpression("Constraints[7]", "Params.sketch20_radius")
pocket15 = doc.addObject("PartDesign::Pocket", "Pocket014")
body.addObject(pocket15)
pocket15.Profile = sketch20
pocket15.Type = "UpToFirst"

sketch21 = doc.addObject("Sketcher::SketchObject", "Sketch020")
body.addObject(sketch21)
sketch21.AttachmentSupport = (doc.XY_Plane, [""])
sketch21.MapMode = "FlatFace"
sketch21.AttachmentOffset = App.Placement(Vector(0, 0, 7), App.Rotation())
sketch21.addGeometry([
    Part.LineSegment(Vector(45, 7.8, 0), Vector(44, 7.8, 0)),
    Part.ArcOfCircle(Part.Circle(Vector(44, 7, 0), Vector(0, 0, 1), 0.8), math.radians(90), math.radians(270)),
    Part.LineSegment(Vector(44, 6.2, 0), Vector(45, 6.2, 0)),
    Part.ArcOfCircle(Part.Circle(Vector(45, 7, 0), Vector(0, 0, 1), 0.8), math.radians(-90), math.radians(90)),
], False)
sketch21.addConstraint([
    Sketcher.Constraint("Tangent", 0, 2, 1, 1),
    Sketcher.Constraint("Tangent", 1, 2, 2, 1),
    Sketcher.Constraint("Tangent", 2, 2, 3, 1),
    Sketcher.Constraint("Tangent", 3, 2, 0, 1),
    Sketcher.Constraint("Horizontal", 0),
    Sketcher.Constraint("Horizontal", 2),
    Sketcher.Constraint("DistanceX", 0, 2, 0, 1, Q("1 mm")),
    Sketcher.Constraint("Radius", 1, Q("0.75 mm")),
    Sketcher.Constraint("DistanceX", -1, 1, 1, 3, Q("44 mm")),
    Sketcher.Constraint("DistanceY", -1, 1, 1, 3, Q("7 mm")),
])
sketch21.setExpression("Constraints[6]", "Params.sketch21_width")
sketch21.setExpression("Constraints[7]", "Params.sketch21_radius")
pocket16 = doc.addObject("PartDesign::Pocket", "Pocket015")
body.addObject(pocket16)
pocket16.Profile = sketch21
pocket16.Type = "UpToFirst"
doc.recompute()

chamfer = doc.addObject("PartDesign::Chamfer", "Chamfer")
body.addObject(chamfer)
chamfer.Base = (pocket16, edges_at(pocket16, [(48, 28, 1.5), (0, 28, 1.5)]))
chamfer.setExpression("Size", "Params.chamfer_size")
doc.recompute()

chamfer2 = doc.addObject("PartDesign::Chamfer", "Chamfer001")
body.addObject(chamfer2)
chamfer2.Base = (chamfer, edges_at(chamfer, [(0, 3, 1.5), (48, 3, 1.5)]))
chamfer2.setExpression("Size", "Params.chamfer2_size")

doc.recompute()
